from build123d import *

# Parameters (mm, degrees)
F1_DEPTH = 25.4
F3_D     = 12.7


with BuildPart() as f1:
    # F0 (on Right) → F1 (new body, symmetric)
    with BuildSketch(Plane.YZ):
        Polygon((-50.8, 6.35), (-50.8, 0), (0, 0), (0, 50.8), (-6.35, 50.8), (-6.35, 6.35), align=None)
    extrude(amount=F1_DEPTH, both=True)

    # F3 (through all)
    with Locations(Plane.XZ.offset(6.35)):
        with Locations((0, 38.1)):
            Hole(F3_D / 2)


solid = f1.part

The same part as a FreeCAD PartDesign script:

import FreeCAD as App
import Part
import Sketcher
from FreeCAD import Vector
Q = App.Units.Quantity


def add_polygon(sketch, points):
    """Adds a closed chain of lines whose ends are joined by coincident constraints."""
    first, n = sketch.GeometryCount, len(points)
    for a, b in zip(points, points[1:] + points[:1]):
        sketch.addGeometry(Part.LineSegment(App.Vector(*a, 0), App.Vector(*b, 0)), False)
    for i in range(n):
        sketch.addConstraint(Sketcher.Constraint("Coincident", first + i, 2, first + (i + 1) % n, 1))

doc = App.newDocument("Part")
body = doc.addObject("PartDesign::Body", "Body")

sketch1 = body.newObject("Sketcher::SketchObject", "Sketch")
sketch1.AttachmentSupport = (doc.getObject("YZ_Plane"), [""])
sketch1.MapMode = "FlatFace"
add_polygon(sketch1, [(-51, 6), (-51, 0), (0, 0), (0, 51), (-6, 51), (-6, 6)])
sketch1.addConstraint(Sketcher.Constraint("Vertical", 0))
sketch1.addConstraint(Sketcher.Constraint("Horizontal", 1))
sketch1.addConstraint(Sketcher.Constraint("Vertical", 2))
sketch1.addConstraint(Sketcher.Constraint("Horizontal", 3))
sketch1.addConstraint(Sketcher.Constraint("Vertical", 4))
sketch1.addConstraint(Sketcher.Constraint("Horizontal", 5))
sketch1.addConstraint(Sketcher.Constraint("Coincident", 1, 2, -1, 1))
sketch1.addConstraint(Sketcher.Constraint("Equal", 3, 0))
sketch1.addConstraint(Sketcher.Constraint("Equal", 1, 2))
sketch1.addConstraint(Sketcher.Constraint("DistanceX", 1, 1, 1, 2, Q("2 in")))
sketch1.addConstraint(Sketcher.Constraint("DistanceX", 3, 2, 3, 1, Q("0.25 in")))
pad1 = body.newObject("PartDesign::Pad", "Pad")
pad1.Profile = sketch1
pad1.Length = Q("2 in")
pad1.Midplane = True

sketch2 = body.newObject("Sketcher::SketchObject", "Sketch001")
sketch2.AttachmentSupport = (doc.getObject("XZ_Plane"), [""])
sketch2.MapMode = "FlatFace"
sketch2.AttachmentOffset = App.Placement(Vector(0, 0, 0.25 * 25.4), App.Rotation())
sketch2.addGeometry(Part.Circle(Vector(0, 38, 0), Vector(0, 0, 1), 6), False)
sketch2.addConstraint(Sketcher.Constraint("PointOnObject", 0, 3, -2))
sketch2.addConstraint(Sketcher.Constraint("Diameter", 0, Q("0.5 in")))
sketch2.addConstraint(Sketcher.Constraint("DistanceY", -1, 1, 0, 3, Q("1.5 in")))
doc.recompute()
hole = body.newObject("PartDesign::Hole", "Hole")
hole.Profile = sketch2
hole.ThreadType = "None"
hole.Diameter = Q("0.5 in")
hole.DepthType = "ThroughAll"

doc.recompute()
